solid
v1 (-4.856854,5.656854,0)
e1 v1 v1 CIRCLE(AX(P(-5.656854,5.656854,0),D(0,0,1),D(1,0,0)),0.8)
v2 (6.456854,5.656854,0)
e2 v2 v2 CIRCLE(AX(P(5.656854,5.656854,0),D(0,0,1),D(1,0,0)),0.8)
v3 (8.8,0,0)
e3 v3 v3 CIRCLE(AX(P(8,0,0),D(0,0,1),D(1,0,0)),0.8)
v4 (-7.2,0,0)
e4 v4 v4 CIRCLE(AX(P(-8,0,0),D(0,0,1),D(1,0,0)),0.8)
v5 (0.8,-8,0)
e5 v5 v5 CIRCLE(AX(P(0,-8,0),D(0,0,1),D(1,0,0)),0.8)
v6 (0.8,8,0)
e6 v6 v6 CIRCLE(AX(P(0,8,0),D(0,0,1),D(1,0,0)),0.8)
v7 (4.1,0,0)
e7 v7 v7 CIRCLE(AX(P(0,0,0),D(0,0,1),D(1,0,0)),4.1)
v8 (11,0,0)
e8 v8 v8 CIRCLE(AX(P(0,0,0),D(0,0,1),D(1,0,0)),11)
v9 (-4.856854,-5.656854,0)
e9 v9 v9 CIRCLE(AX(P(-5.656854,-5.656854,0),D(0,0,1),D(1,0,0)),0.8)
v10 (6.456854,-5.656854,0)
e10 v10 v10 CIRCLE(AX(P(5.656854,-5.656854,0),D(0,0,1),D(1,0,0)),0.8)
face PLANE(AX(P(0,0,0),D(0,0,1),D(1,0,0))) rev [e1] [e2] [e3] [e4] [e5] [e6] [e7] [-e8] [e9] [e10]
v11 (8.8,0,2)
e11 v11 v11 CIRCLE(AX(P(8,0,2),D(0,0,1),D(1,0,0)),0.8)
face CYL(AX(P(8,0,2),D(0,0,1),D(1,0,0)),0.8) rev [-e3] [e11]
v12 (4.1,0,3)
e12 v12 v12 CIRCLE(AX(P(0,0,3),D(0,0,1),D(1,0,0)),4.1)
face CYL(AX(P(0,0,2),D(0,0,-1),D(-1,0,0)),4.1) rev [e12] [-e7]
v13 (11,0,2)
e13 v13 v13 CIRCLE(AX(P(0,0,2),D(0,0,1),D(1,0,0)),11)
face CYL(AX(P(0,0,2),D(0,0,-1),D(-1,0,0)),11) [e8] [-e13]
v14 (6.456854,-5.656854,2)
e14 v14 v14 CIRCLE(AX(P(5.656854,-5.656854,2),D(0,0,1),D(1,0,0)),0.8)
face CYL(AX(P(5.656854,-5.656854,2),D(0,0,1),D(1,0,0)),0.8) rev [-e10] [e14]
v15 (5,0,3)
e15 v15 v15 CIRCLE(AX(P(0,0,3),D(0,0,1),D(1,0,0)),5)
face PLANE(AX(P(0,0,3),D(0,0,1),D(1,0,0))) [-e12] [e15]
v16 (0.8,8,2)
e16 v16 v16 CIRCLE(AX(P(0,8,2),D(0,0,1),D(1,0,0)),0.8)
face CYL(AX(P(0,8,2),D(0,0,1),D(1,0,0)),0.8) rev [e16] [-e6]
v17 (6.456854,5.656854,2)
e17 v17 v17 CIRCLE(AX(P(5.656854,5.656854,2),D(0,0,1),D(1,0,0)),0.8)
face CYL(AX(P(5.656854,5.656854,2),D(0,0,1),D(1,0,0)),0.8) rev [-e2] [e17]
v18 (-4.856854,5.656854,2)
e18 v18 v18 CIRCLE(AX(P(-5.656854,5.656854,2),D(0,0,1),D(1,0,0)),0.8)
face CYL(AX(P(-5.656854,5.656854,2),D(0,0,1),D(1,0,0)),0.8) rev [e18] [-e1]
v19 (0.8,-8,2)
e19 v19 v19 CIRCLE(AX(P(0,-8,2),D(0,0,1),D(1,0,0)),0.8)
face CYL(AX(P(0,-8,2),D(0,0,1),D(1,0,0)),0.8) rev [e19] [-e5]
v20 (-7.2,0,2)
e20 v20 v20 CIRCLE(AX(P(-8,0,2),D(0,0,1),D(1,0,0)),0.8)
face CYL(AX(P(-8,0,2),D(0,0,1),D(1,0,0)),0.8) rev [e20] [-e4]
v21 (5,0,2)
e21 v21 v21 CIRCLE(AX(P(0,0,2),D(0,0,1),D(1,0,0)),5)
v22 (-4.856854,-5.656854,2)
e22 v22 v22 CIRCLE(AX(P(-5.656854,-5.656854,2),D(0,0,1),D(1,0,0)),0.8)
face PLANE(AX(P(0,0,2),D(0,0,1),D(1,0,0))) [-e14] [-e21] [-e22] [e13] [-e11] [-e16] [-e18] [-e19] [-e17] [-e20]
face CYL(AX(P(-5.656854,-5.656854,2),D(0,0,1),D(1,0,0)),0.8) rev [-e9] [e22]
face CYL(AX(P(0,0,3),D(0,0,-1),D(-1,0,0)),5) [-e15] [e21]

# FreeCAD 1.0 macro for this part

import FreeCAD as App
import Part
import Sketcher
Q = App.Units.Quantity

doc = App.newDocument("Part")
params = doc.addObject("Spreadsheet::Sheet", "Params")
for row, (alias, value) in enumerate([
    ("sketch1_diameter", "22 mm"),
    ("sketch1_diameter2", "8.2 mm"),
    ("pad1_length", "2 mm"),
    ("sketch2_diameter", "1.6 mm"),
    ("hole_diameter", "1.6 mm"),
    ("hole_depth", "5.2 mm"),
    ("sketch3_diameter", "10 mm"),
    ("sketch3_diameter2", "8.2 mm"),
    ("pad2_length", "1 mm"),
], start=1):
    params.set(f"A{row}", alias)
    params.set(f"B{row}", "=" + value)
    params.setAlias(f"B{row}", alias)

body = doc.addObject("PartDesign::Body", "Body")

# Sketch on XY plane
sketch1 = body.newObject("Sketcher::SketchObject", "Sketch")
sketch1.AttachmentSupport = (doc.getObject("XY_Plane"), [""])
sketch1.MapMode = "FlatFace"
sketch1.addGeometry([
    Part.Circle(App.Vector(0, 0, 0), App.Vector(0, 0, 1), 11),
    Part.Circle(App.Vector(0, 0, 0), App.Vector(0, 0, 1), 4.1),
], False)
sketch1.addConstraint([
    Sketcher.Constraint("Coincident", 0, 3, -1, 1),
    Sketcher.Constraint("Coincident", 1, 3, -1, 1),
    Sketcher.Constraint("Diameter", 0, Q("22 mm")),
    Sketcher.Constraint("Diameter", 1, Q("8.2 mm")),
])
sketch1.setExpression("Constraints[2]", "Params.sketch1_diameter")
sketch1.setExpression("Constraints[3]", "Params.sketch1_diameter2")
pad1 = body.newObject("PartDesign::Pad", "Pad")
pad1.Profile = sketch1
pad1.setExpression("Length", "Params.pad1_length")

# Sketch on XY plane
sketch2 = body.newObject("Sketcher::SketchObject", "Sketch001")
sketch2.AttachmentSupport = (doc.getObject("XY_Plane"), [""])
sketch2.MapMode = "FlatFace"
sketch2.AttachmentOffset = App.Placement(App.Vector(0, 0, 2), App.Rotation())
sketch2.addGeometry([
    Part.Circle(App.Vector(0, 8, 0), App.Vector(0, 0, 1), 0.8),  # 0
    Part.Circle(App.Vector(5.7, 5.7, 0), App.Vector(0, 0, 1), 0.8),  # 1
    Part.Circle(App.Vector(8, 0, 0), App.Vector(0, 0, 1), 0.8),  # 2
    Part.Circle(App.Vector(5.7, -5.7, 0), App.Vector(0, 0, 1), 0.8),  # 3
    Part.Circle(App.Vector(0, -8, 0), App.Vector(0, 0, 1), 0.8),  # 4
    Part.Circle(App.Vector(-5.7, -5.7, 0), App.Vector(0, 0, 1), 0.8),  # 5
    Part.Circle(App.Vector(-8, 0, 0), App.Vector(0, 0, 1), 0.8),  # 6
    Part.Circle(App.Vector(-5.7, 5.7, 0), App.Vector(0, 0, 1), 0.8),  # 7
], False)
sketch2.addConstraint([
    Sketcher.Constraint("Equal", 0, 1),
    Sketcher.Constraint("Equal", 1, 2),
    Sketcher.Constraint("Equal", 2, 3),
    Sketcher.Constraint("Equal", 3, 4),
    Sketcher.Constraint("Equal", 4, 5),
    Sketcher.Constraint("Equal", 5, 6),
    Sketcher.Constraint("Equal", 6, 7),
    Sketcher.Constraint("Symmetric", 0, 3, 4, 3, -1, 1),
    Sketcher.Constraint("Symmetric", 1, 3, 5, 3, -1, 1),
    Sketcher.Constraint("Symmetric", 2, 3, 6, 3, -1, 1),
    Sketcher.Constraint("Symmetric", 3, 3, 7, 3, -1, 1),
    Sketcher.Constraint("Symmetric", 3, 3, 5, 3, -2),
    Sketcher.Constraint("PointOnObject", 0, 3, -2),
    Sketcher.Constraint("PointOnObject", 2, 3, -1),
    Sketcher.Constraint("Diameter", 0, Q("1.6 mm")),
    Sketcher.Constraint("DistanceY", -1, 1, 0, 3, Q("8 mm")),
    Sketcher.Constraint("DistanceX", -1, 1, 2, 3, Q("8 mm")),
    Sketcher.Constraint("DistanceY", 3, 3, 1, 3, Q("11.313708 mm")),
    Sketcher.Constraint("DistanceX", 5, 3, 3, 3, Q("11.313708 mm")),
])
sketch2.setExpression("Constraints[14]", "Params.sketch2_diameter")
doc.recompute()
hole = body.newObject("PartDesign::Hole", "Hole")
hole.Profile = sketch2
hole.ThreadType = "None"
hole.setExpression("Diameter", "Params.hole_diameter")
hole.DepthType = "Dimension"
hole.setExpression("Depth", "Params.hole_depth")
hole.DrillPoint = "Angled"
hole.DrillPointAngle = 118

# Sketch on XY plane
sketch3 = body.newObject("Sketcher::SketchObject", "Sketch002")
sketch3.AttachmentSupport = (doc.getObject("XY_Plane"), [""])
sketch3.MapMode = "FlatFace"
sketch3.AttachmentOffset = App.Placement(App.Vector(0, 0, 2), App.Rotation())
sketch3.addGeometry([
    Part.Circle(App.Vector(0, 0, 0), App.Vector(0, 0, 1), 5),
    Part.Circle(App.Vector(0, 0, 0), App.Vector(0, 0, 1), 4.1),
], False)
sketch3.addConstraint([
    Sketcher.Constraint("Coincident", 0, 3, -1, 1),
    Sketcher.Constraint("Coincident", 1, 3, -1, 1),
    Sketcher.Constraint("Diameter", 0, Q("10 mm")),
    Sketcher.Constraint("Diameter", 1, Q("8.2 mm")),
])
sketch3.setExpression("Constraints[2]", "Params.sketch3_diameter")
sketch3.setExpression("Constraints[3]", "Params.sketch3_diameter2")
pad2 = body.newObject("PartDesign::Pad", "Pad001")
pad2.Profile = sketch3
pad2.setExpression("Length", "Params.pad2_length")

doc.recompute()
